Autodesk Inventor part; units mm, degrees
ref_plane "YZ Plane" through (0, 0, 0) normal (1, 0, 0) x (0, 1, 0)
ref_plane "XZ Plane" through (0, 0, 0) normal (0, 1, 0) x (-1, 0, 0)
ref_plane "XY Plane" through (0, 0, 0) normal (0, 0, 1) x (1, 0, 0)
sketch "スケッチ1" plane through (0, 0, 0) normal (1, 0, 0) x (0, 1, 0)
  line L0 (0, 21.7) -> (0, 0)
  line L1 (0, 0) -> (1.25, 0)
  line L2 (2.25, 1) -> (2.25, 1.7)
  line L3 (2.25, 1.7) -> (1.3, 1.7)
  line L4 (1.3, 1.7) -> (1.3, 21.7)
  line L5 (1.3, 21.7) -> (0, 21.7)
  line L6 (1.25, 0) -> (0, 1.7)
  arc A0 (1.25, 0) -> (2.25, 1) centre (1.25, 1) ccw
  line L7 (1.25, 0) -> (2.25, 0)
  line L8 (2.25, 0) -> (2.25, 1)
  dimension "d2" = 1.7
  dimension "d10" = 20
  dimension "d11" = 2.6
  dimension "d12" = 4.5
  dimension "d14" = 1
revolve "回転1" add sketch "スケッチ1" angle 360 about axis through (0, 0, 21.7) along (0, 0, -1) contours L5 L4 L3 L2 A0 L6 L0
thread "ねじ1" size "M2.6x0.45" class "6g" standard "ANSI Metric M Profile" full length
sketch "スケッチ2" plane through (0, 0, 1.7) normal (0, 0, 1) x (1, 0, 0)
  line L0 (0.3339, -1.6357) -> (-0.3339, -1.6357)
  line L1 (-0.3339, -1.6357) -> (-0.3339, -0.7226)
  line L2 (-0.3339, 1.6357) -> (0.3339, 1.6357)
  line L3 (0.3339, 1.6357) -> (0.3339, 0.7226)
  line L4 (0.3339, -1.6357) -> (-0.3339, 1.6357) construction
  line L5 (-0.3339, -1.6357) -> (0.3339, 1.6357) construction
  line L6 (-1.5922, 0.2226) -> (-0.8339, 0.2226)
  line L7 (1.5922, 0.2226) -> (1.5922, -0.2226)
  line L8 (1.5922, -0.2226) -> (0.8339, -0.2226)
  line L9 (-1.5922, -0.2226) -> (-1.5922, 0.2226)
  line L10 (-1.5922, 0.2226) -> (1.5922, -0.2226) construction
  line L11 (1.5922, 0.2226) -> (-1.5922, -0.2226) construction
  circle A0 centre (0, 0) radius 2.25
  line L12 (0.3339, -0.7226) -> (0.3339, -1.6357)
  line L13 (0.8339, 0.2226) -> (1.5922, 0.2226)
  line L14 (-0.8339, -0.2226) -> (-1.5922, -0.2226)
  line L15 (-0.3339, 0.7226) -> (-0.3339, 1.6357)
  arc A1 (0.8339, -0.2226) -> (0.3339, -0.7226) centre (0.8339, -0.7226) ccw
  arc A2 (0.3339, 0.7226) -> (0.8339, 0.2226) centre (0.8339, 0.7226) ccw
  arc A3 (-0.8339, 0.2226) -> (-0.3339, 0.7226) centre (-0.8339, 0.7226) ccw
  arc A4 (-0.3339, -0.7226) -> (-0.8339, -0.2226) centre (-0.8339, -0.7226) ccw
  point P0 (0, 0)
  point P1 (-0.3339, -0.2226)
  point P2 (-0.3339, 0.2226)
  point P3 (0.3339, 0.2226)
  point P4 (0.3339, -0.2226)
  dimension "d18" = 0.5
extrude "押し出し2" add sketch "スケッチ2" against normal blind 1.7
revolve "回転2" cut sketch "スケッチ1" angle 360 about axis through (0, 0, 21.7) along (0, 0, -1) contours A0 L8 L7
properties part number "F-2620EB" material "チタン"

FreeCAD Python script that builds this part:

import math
import FreeCAD as App
import Part
import Sketcher

V = App.Vector
Q = App.Units.Quantity

doc = App.newDocument("Part")
body = doc.addObject("PartDesign::Body", "Body")

sketch1 = body.newObject("Sketcher::SketchObject", "Sketch")
sketch1.AttachmentSupport = (doc.getObject("YZ_Plane"), [""])
sketch1.MapMode = "FlatFace"
sketch1.addGeometry(Part.LineSegment(V(1.3, 21.7, 0), V(0, 21.7, 0)), False)
sketch1.addGeometry(Part.LineSegment(V(0, 21.7, 0), V(0, 1.7, 0)), False)
sketch1.addGeometry(Part.LineSegment(V(0, 1.7, 0), V(1.2, 0, 0)), False)
sketch1.addGeometry(Part.ArcOfCircle(Part.Circle(V(1.2, 1, 0), V(0, 0, 1), 1), math.radians(-90), math.radians(0)), False)
sketch1.addGeometry(Part.LineSegment(V(2.2, 1, 0), V(2.2, 1.7, 0)), False)
sketch1.addGeometry(Part.LineSegment(V(2.2, 1.7, 0), V(1.3, 1.7, 0)), False)
sketch1.addGeometry(Part.LineSegment(V(1.3, 1.7, 0), V(1.3, 21.7, 0)), False)
sketch1.addConstraint(Sketcher.Constraint("Coincident", 0, 2, 1, 1))
sketch1.addConstraint(Sketcher.Constraint("Coincident", 1, 2, 2, 1))
sketch1.addConstraint(Sketcher.Constraint("Coincident", 2, 2, 3, 1))
sketch1.addConstraint(Sketcher.Constraint("Tangent", 3, 2, 4, 1))
sketch1.addConstraint(Sketcher.Constraint("Coincident", 4, 2, 5, 1))
sketch1.addConstraint(Sketcher.Constraint("Coincident", 5, 2, 6, 1))
sketch1.addConstraint(Sketcher.Constraint("Coincident", 6, 2, 0, 1))
sketch1.addConstraint(Sketcher.Constraint("Horizontal", 0))
sketch1.addConstraint(Sketcher.Constraint("Vertical", 1))
sketch1.addConstraint(Sketcher.Constraint("Vertical", 4))
sketch1.addConstraint(Sketcher.Constraint("Horizontal", 5))
sketch1.addConstraint(Sketcher.Constraint("Vertical", 6))
sketch1.addConstraint(Sketcher.Constraint("PointOnObject", 0, 2, -2))
sketch1.addConstraint(Sketcher.Constraint("PointOnObject", 2, 2, -1))
sketch1.addConstraint(Sketcher.Constraint("Horizontal", 1, 2, 4, 2))
sketch1.addConstraint(Sketcher.Constraint("Vertical", 3, 3, 2, 2))
sketch1.addConstraint(Sketcher.Constraint("Radius", 3, Q("1 mm")))
sketch1.addConstraint(Sketcher.Constraint("DistanceY", 1, 2, 1, 1, Q("20 mm")))
sketch1.addConstraint(Sketcher.Constraint("DistanceY", -1, 1, 1, 2, Q("1.7 mm")))
sketch1.addConstraint(Sketcher.Constraint("DistanceX", 0, 2, 0, 1, Q("1.3 mm")))
sketch1.addConstraint(Sketcher.Constraint("DistanceX", 5, 2, 5, 1, Q("0.95 mm")))
revolution = body.newObject("PartDesign::Revolution", "Revolution")
revolution.Profile = sketch1
revolution.ReferenceAxis = (sketch1, ["V_Axis"])
revolution.Angle = 360

sketch2 = body.newObject("Sketcher::SketchObject", "Sketch001")
sketch2.AttachmentSupport = (doc.getObject("XY_Plane"), [""])
sketch2.MapMode = "FlatFace"
sketch2.AttachmentOffset = App.Placement(V(0, 0, 1.7), App.Rotation())
sketch2.addGeometry(Part.Circle(V(0, 0, 0), V(0, 0, 1), 2.25), False)
sketch2.addGeometry(Part.LineSegment(V(0.33, -0.72, 0), V(0.33, -1.64, 0)), False)
sketch2.addGeometry(Part.LineSegment(V(0.33, -1.64, 0), V(-0.33, -1.64, 0)), False)
sketch2.addGeometry(Part.LineSegment(V(-0.33, -1.64, 0), V(-0.33, -0.72, 0)), False)
sketch2.addGeometry(Part.ArcOfCircle(Part.Circle(V(-0.83, -0.72, 0), V(0, 0, 1), 0.5), math.radians(0), math.radians(90)), False)
sketch2.addGeometry(Part.LineSegment(V(-0.83, -0.22, 0), V(-1.59, -0.22, 0)), False)
sketch2.addGeometry(Part.LineSegment(V(-1.59, -0.22, 0), V(-1.59, 0.22, 0)), False)
sketch2.addGeometry(Part.LineSegment(V(-1.59, 0.22, 0), V(-0.83, 0.22, 0)), False)
sketch2.addGeometry(Part.ArcOfCircle(Part.Circle(V(-0.83, 0.72, 0), V(0, 0, 1), 0.5), math.radians(-90), math.radians(0)), False)
sketch2.addGeometry(Part.LineSegment(V(-0.33, 0.72, 0), V(-0.33, 1.64, 0)), False)
sketch2.addGeometry(Part.LineSegment(V(-0.33, 1.64, 0), V(0.33, 1.64, 0)), False)
sketch2.addGeometry(Part.LineSegment(V(0.33, 1.64, 0), V(0.33, 0.72, 0)), False)
sketch2.addGeometry(Part.ArcOfCircle(Part.Circle(V(0.83, 0.72, 0), V(0, 0, 1), 0.5), math.radians(180), math.radians(270)), False)
sketch2.addGeometry(Part.LineSegment(V(0.83, 0.22, 0), V(1.59, 0.22, 0)), False)
sketch2.addGeometry(Part.LineSegment(V(1.59, 0.22, 0), V(1.59, -0.22, 0)), False)
sketch2.addGeometry(Part.LineSegment(V(1.59, -0.22, 0), V(0.83, -0.22, 0)), False)
sketch2.addGeometry(Part.ArcOfCircle(Part.Circle(V(0.83, -0.72, 0), V(0, 0, 1), 0.5), math.radians(90), math.radians(180)), False)
sketch2.addConstraint(Sketcher.Constraint("Coincident", 1, 2, 2, 1))
sketch2.addConstraint(Sketcher.Constraint("Coincident", 2, 2, 3, 1))
sketch2.addConstraint(Sketcher.Constraint("Tangent", 3, 2, 4, 1))
sketch2.addConstraint(Sketcher.Constraint("Tangent", 4, 2, 5, 1))
sketch2.addConstraint(Sketcher.Constraint("Coincident", 5, 2, 6, 1))
sketch2.addConstraint(Sketcher.Constraint("Coincident", 6, 2, 7, 1))
sketch2.addConstraint(Sketcher.Constraint("Tangent", 7, 2, 8, 1))
sketch2.addConstraint(Sketcher.Constraint("Tangent", 8, 2, 9, 1))
sketch2.addConstraint(Sketcher.Constraint("Coincident", 9, 2, 10, 1))
sketch2.addConstraint(Sketcher.Constraint("Coincident", 10, 2, 11, 1))
sketch2.addConstraint(Sketcher.Constraint("Tangent", 11, 2, 12, 1))
sketch2.addConstraint(Sketcher.Constraint("Tangent", 12, 2, 13, 1))
sketch2.addConstraint(Sketcher.Constraint("Coincident", 13, 2, 14, 1))
sketch2.addConstraint(Sketcher.Constraint("Coincident", 14, 2, 15, 1))
sketch2.addConstraint(Sketcher.Constraint("Tangent", 15, 2, 16, 1))
sketch2.addConstraint(Sketcher.Constraint("Tangent", 16, 2, 1, 1))
sketch2.addConstraint(Sketcher.Constraint("Vertical", 1))
sketch2.addConstraint(Sketcher.Constraint("Horizontal", 2))
sketch2.addConstraint(Sketcher.Constraint("Vertical", 3))
sketch2.addConstraint(Sketcher.Constraint("Horizontal", 5))
sketch2.addConstraint(Sketcher.Constraint("Vertical", 6))
sketch2.addConstraint(Sketcher.Constraint("Horizontal", 7))
sketch2.addConstraint(Sketcher.Constraint("Vertical", 9))
sketch2.addConstraint(Sketcher.Constraint("Horizontal", 10))
sketch2.addConstraint(Sketcher.Constraint("Vertical", 11))
sketch2.addConstraint(Sketcher.Constraint("Horizontal", 13))
sketch2.addConstraint(Sketcher.Constraint("Vertical", 14))
sketch2.addConstraint(Sketcher.Constraint("Horizontal", 15))
sketch2.addConstraint(Sketcher.Constraint("Coincident", 0, 3, -1, 1))
sketch2.addConstraint(Sketcher.Constraint("Equal", 4, 8))
sketch2.addConstraint(Sketcher.Constraint("Equal", 8, 12))
sketch2.addConstraint(Sketcher.Constraint("Equal", 12, 16))
sketch2.addConstraint(Sketcher.Constraint("Symmetric", 4, 3, 12, 3, -1, 1))
sketch2.addConstraint(Sketcher.Constraint("Symmetric", 8, 3, 16, 3, -1, 1))
sketch2.addConstraint(Sketcher.Constraint("Symmetric", 8, 3, 12, 3, -2))
sketch2.addConstraint(Sketcher.Constraint("Equal", 7, 13))
sketch2.addConstraint(Sketcher.Constraint("Equal", 3, 9))
sketch2.addConstraint(Sketcher.Constraint("Radius", 4, Q("0.5 mm")))
sketch2.addConstraint(Sketcher.Constraint("Diameter", 0, Q("4.5 mm")))
sketch2.addConstraint(Sketcher.Constraint("DistanceY", 1, 2, 1, 1, Q("0.913 mm")))
sketch2.addConstraint(Sketcher.Constraint("DistanceX", 2, 2, 2, 1, Q("0.6678 mm")))
sketch2.addConstraint(Sketcher.Constraint("DistanceX", 5, 2, 5, 1, Q("0.7583 mm")))
sketch2.addConstraint(Sketcher.Constraint("DistanceY", 6, 1, 6, 2, Q("0.4452 mm")))
pad1 = body.newObject("PartDesign::Pad", "Pad")
pad1.Profile = sketch2
pad1.Length = 1.7
pad1.Reversed = True

sketch3 = body.newObject("Sketcher::SketchObject", "Sketch002")
sketch3.AttachmentSupport = (doc.getObject("YZ_Plane"), [""])
sketch3.MapMode = "FlatFace"
sketch3.addGeometry(Part.ArcOfCircle(Part.Circle(V(1.2, 1, 0), V(0, 0, 1), 1), math.radians(-90), math.radians(0)), False)
sketch3.addGeometry(Part.LineSegment(V(1.2, 0, 0), V(2.2, 0, 0)), False)
sketch3.addGeometry(Part.LineSegment(V(2.2, 0, 0), V(2.2, 1, 0)), False)
sketch3.addConstraint(Sketcher.Constraint("Tangent", 0, 1, 1, 1))
sketch3.addConstraint(Sketcher.Constraint("Coincident", 1, 2, 2, 1))
sketch3.addConstraint(Sketcher.Constraint("Tangent", 2, 2, 0, 2))
sketch3.addConstraint(Sketcher.Constraint("Horizontal", 1))
sketch3.addConstraint(Sketcher.Constraint("Vertical", 2))
sketch3.addConstraint(Sketcher.Constraint("PointOnObject", 0, 1, -1))
sketch3.addConstraint(Sketcher.Constraint("Radius", 0, Q("1 mm")))
sketch3.addConstraint(Sketcher.Constraint("DistanceX", -1, 1, 0, 3, Q("1.25 mm")))
groove = body.newObject("PartDesign::Groove", "Groove")
groove.Profile = sketch3
groove.ReferenceAxis = (sketch3, ["V_Axis"])
groove.Angle = 360

doc.recompute()
